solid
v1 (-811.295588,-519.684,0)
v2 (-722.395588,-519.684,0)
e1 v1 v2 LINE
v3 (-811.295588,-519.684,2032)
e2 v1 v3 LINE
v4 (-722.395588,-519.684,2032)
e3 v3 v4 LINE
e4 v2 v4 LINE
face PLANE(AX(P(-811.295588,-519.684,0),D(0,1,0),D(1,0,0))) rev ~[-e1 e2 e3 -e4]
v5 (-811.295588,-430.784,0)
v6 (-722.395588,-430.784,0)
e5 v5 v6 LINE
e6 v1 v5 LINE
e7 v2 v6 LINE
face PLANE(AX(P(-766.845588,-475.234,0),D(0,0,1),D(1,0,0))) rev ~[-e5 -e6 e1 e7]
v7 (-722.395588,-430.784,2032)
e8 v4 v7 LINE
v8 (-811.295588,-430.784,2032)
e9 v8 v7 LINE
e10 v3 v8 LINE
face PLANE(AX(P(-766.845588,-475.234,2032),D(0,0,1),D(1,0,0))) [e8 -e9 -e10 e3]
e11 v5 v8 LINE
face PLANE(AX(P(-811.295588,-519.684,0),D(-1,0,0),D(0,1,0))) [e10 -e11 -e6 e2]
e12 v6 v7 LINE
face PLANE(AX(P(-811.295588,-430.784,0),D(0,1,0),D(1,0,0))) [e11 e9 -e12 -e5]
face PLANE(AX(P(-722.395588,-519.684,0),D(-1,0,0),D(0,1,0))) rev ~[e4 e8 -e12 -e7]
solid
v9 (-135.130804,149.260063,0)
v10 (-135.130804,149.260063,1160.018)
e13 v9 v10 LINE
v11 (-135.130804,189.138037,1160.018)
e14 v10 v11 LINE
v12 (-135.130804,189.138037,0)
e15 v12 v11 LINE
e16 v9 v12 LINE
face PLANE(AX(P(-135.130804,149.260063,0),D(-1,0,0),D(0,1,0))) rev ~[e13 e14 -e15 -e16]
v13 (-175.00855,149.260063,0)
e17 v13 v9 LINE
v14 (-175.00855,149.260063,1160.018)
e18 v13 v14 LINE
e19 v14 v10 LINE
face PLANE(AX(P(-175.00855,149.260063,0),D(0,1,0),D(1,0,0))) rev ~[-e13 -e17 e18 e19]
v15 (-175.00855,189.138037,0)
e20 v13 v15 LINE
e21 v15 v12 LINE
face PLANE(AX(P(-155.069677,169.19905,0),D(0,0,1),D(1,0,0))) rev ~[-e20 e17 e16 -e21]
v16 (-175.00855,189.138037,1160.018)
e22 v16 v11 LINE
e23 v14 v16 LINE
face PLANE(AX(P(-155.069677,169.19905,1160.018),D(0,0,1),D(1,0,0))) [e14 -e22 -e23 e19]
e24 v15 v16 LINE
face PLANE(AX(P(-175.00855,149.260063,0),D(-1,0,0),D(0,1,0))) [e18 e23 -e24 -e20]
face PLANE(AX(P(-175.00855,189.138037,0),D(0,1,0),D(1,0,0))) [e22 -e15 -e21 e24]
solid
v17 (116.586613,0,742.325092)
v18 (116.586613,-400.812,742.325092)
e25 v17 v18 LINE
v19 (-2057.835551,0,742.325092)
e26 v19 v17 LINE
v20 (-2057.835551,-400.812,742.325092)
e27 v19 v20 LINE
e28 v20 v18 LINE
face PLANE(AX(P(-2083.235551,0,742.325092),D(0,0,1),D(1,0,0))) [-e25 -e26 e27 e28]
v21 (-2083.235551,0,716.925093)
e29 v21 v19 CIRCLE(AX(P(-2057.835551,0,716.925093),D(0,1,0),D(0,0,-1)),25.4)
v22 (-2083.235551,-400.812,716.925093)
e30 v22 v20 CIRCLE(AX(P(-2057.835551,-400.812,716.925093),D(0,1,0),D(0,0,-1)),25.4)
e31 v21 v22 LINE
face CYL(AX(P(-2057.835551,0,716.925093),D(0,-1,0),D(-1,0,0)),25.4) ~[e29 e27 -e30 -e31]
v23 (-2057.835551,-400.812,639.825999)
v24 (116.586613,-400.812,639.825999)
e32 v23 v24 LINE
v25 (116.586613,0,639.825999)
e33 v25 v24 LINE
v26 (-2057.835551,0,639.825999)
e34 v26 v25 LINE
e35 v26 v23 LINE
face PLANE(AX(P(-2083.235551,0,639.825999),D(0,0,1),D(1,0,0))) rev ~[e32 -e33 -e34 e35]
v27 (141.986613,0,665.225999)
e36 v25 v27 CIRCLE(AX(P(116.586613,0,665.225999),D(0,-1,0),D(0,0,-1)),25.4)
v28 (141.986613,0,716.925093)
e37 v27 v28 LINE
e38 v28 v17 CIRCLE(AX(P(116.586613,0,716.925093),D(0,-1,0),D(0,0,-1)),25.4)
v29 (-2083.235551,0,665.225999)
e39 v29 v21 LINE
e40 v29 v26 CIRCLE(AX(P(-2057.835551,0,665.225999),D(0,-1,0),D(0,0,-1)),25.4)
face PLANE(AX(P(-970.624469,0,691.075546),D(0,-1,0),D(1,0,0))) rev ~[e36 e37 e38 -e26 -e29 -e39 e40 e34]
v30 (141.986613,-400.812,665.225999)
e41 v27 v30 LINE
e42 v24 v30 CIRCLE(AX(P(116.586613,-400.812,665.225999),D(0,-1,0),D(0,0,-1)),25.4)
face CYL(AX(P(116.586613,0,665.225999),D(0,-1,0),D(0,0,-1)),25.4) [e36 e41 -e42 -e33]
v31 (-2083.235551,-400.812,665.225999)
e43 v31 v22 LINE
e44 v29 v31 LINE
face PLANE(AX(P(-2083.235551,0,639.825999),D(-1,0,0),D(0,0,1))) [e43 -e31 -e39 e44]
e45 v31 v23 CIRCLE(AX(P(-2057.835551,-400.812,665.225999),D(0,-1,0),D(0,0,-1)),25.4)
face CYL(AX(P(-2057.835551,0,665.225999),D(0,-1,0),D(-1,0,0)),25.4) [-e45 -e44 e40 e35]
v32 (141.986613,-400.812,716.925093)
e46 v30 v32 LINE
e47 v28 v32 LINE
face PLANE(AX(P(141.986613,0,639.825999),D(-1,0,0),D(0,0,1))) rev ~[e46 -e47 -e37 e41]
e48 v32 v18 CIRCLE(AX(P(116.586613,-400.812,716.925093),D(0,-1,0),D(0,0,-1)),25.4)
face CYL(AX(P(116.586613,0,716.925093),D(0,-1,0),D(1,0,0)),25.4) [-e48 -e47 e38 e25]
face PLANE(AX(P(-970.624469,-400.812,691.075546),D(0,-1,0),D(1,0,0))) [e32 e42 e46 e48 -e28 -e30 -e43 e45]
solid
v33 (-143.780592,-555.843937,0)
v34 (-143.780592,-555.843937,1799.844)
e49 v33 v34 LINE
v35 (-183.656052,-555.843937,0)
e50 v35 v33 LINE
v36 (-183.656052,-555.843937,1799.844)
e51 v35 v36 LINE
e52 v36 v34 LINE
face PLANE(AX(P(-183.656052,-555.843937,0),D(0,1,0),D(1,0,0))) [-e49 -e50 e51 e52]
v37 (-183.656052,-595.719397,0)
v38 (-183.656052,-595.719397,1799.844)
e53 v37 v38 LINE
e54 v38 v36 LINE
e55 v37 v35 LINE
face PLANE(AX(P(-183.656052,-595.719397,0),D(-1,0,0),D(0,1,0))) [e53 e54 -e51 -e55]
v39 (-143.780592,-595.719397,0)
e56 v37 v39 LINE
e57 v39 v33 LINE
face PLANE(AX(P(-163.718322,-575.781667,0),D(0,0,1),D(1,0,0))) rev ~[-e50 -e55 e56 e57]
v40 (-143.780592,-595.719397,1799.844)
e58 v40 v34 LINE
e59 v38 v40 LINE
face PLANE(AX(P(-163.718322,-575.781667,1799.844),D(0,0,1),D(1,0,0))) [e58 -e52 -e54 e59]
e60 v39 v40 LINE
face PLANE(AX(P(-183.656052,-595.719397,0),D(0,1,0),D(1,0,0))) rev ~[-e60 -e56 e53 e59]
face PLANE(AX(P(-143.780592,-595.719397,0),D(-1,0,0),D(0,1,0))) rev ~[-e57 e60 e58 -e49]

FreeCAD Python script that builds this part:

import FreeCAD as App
import Part
import Sketcher
Q = App.Units.Quantity


def edges_at(feature, points):
    """Names of the edges that pass closest to the given points."""
    edges = feature.Shape.Edges
    near = lambda p: min(range(len(edges)), key=lambda i: edges[i].distToShape(Part.Vertex(*p))[0])
    return sorted({f"Edge{near(p) + 1}" for p in points})

doc = App.newDocument("Part")
params = doc.addObject("Spreadsheet::Sheet", "Params")
for row, (alias, value) in enumerate([
    ("sketch1_width", "3.5 in"),
    ("pad1_length", "80 in"),
    ("pad2_length", "15.78 in"),
    ("fillet_radius", "1 in"),
    ("pad3_length", "45.67 in"),
    ("pad4_length", "70.86 in"),
], start=1):
    params.set(f"A{row}", alias)
    params.set(f"B{row}", "=" + value)
    params.setAlias(f"B{row}", alias)

body = doc.addObject("PartDesign::Body", "Body")

sketch1 = doc.addObject("Sketcher::SketchObject", "Sketch")
body.addObject(sketch1)
sketch1.AttachmentSupport = (doc.XY_Plane, [""])
sketch1.MapMode = "FlatFace"
sketch1.addGeometry(Part.LineSegment(App.Vector(-811, -431, 0), App.Vector(-811, -520, 0)), False)
sketch1.addGeometry(Part.LineSegment(App.Vector(-811, -520, 0), App.Vector(-722, -520, 0)), False)
sketch1.addGeometry(Part.LineSegment(App.Vector(-722, -520, 0), App.Vector(-722, -431, 0)), False)
sketch1.addGeometry(Part.LineSegment(App.Vector(-722, -431, 0), App.Vector(-811, -431, 0)), False)
sketch1.addConstraint(Sketcher.Constraint("Coincident", 0, 2, 1, 1))
sketch1.addConstraint(Sketcher.Constraint("Coincident", 1, 2, 2, 1))
sketch1.addConstraint(Sketcher.Constraint("Coincident", 2, 2, 3, 1))
sketch1.addConstraint(Sketcher.Constraint("Coincident", 3, 2, 0, 1))
sketch1.addConstraint(Sketcher.Constraint("Vertical", 0))
sketch1.addConstraint(Sketcher.Constraint("Horizontal", 1))
sketch1.addConstraint(Sketcher.Constraint("Vertical", 2))
sketch1.addConstraint(Sketcher.Constraint("Horizontal", 3))
sketch1.addConstraint(Sketcher.Constraint("Equal", 3, 0))
sketch1.addConstraint(Sketcher.Constraint("DistanceX", 1, 1, 1, 2, Q("3.5 in")))
sketch1.addConstraint(Sketcher.Constraint("DistanceY", 0, 2, -1, 1, Q("20.46 in")))
sketch1.addConstraint(Sketcher.Constraint("DistanceX", 0, 2, -1, 1, 811.295588))
sketch1.setExpression("Constraints[9]", "Params.sketch1_width")
pad1 = doc.addObject("PartDesign::Pad", "Pad")
body.addObject(pad1)
pad1.Profile = sketch1
pad1.setExpression("Length", "Params.pad1_length")
body2 = doc.addObject("PartDesign::Body", "Body001")

sketch2 = doc.addObject("Sketcher::SketchObject", "Sketch001")
body2.addObject(sketch2)
sketch2.AttachmentSupport = (doc.getObject("XZ_Plane001"), [""])
sketch2.MapMode = "FlatFace"
sketch2.addGeometry(Part.LineSegment(App.Vector(-2083, 742, 0), App.Vector(-2083, 640, 0)), False)
sketch2.addGeometry(Part.LineSegment(App.Vector(-2083, 640, 0), App.Vector(142, 640, 0)), False)
sketch2.addGeometry(Part.LineSegment(App.Vector(142, 640, 0), App.Vector(142, 742, 0)), False)
sketch2.addGeometry(Part.LineSegment(App.Vector(142, 742, 0), App.Vector(-2083, 742, 0)), False)
sketch2.addConstraint(Sketcher.Constraint("Coincident", 0, 2, 1, 1))
sketch2.addConstraint(Sketcher.Constraint("Coincident", 1, 2, 2, 1))
sketch2.addConstraint(Sketcher.Constraint("Coincident", 2, 2, 3, 1))
sketch2.addConstraint(Sketcher.Constraint("Coincident", 3, 2, 0, 1))
sketch2.addConstraint(Sketcher.Constraint("Vertical", 0))
sketch2.addConstraint(Sketcher.Constraint("Horizontal", 1))
sketch2.addConstraint(Sketcher.Constraint("Vertical", 2))
sketch2.addConstraint(Sketcher.Constraint("Horizontal", 3))
sketch2.addConstraint(Sketcher.Constraint("DistanceY", -1, 1, 0, 2, Q("25.19 in")))
sketch2.addConstraint(Sketcher.Constraint("DistanceX", 1, 1, 1, 2, 2225.222164))
sketch2.addConstraint(Sketcher.Constraint("DistanceY", 0, 2, 0, 1, 102.499093))
sketch2.addConstraint(Sketcher.Constraint("DistanceX", 0, 2, -1, 1, 2083.235551))
pad2 = doc.addObject("PartDesign::Pad", "Pad001")
body2.addObject(pad2)
pad2.Profile = sketch2
pad2.setExpression("Length", "Params.pad2_length")
doc.recompute()

fillet = doc.addObject("PartDesign::Fillet", "Fillet")
body2.addObject(fillet)
fillet.Base = (pad2, edges_at(pad2, [
    (-2083.236, -200.406, 742.325),
    (141.987, -200.406, 742.325),
    (-2083.236, -200.406, 639.826),
    (141.987, -200.406, 639.826),
]))
fillet.setExpression("Radius", "Params.fillet_radius")
body3 = doc.addObject("PartDesign::Body", "Body002")

sketch3 = doc.addObject("Sketcher::SketchObject", "Sketch002")
body3.addObject(sketch3)
sketch3.AttachmentSupport = (doc.getObject("XY_Plane002"), [""])
sketch3.MapMode = "FlatFace"
sketch3.addGeometry(Part.LineSegment(App.Vector(-175, 189, 0), App.Vector(-175, 149, 0)), False)
sketch3.addGeometry(Part.LineSegment(App.Vector(-175, 149, 0), App.Vector(-135, 149, 0)), False)
sketch3.addGeometry(Part.LineSegment(App.Vector(-135, 149, 0), App.Vector(-135, 189, 0)), False)
sketch3.addGeometry(Part.LineSegment(App.Vector(-135, 189, 0), App.Vector(-175, 189, 0)), False)
sketch3.addConstraint(Sketcher.Constraint("Coincident", 0, 2, 1, 1))
sketch3.addConstraint(Sketcher.Constraint("Coincident", 1, 2, 2, 1))
sketch3.addConstraint(Sketcher.Constraint("Coincident", 2, 2, 3, 1))
sketch3.addConstraint(Sketcher.Constraint("Coincident", 3, 2, 0, 1))
sketch3.addConstraint(Sketcher.Constraint("Vertical", 0))
sketch3.addConstraint(Sketcher.Constraint("Horizontal", 1))
sketch3.addConstraint(Sketcher.Constraint("Vertical", 2))
sketch3.addConstraint(Sketcher.Constraint("Horizontal", 3))
sketch3.addConstraint(Sketcher.Constraint("DistanceX", 1, 1, 1, 2, 39.877746))
sketch3.addConstraint(Sketcher.Constraint("DistanceY", 0, 2, 0, 1, 39.877975))
sketch3.addConstraint(Sketcher.Constraint("DistanceX", 0, 2, -1, 1, 175.00855))
sketch3.addConstraint(Sketcher.Constraint("DistanceY", -1, 1, 0, 2, 149.260063))
pad3 = doc.addObject("PartDesign::Pad", "Pad002")
body3.addObject(pad3)
pad3.Profile = sketch3
pad3.setExpression("Length", "Params.pad3_length")
body4 = doc.addObject("PartDesign::Body", "Body003")

sketch4 = doc.addObject("Sketcher::SketchObject", "Sketch003")
body4.addObject(sketch4)
sketch4.AttachmentSupport = (doc.getObject("XY_Plane003"), [""])
sketch4.MapMode = "FlatFace"
sketch4.addGeometry(Part.LineSegment(App.Vector(-184, -556, 0), App.Vector(-184, -596, 0)), False)
sketch4.addGeometry(Part.LineSegment(App.Vector(-184, -596, 0), App.Vector(-144, -596, 0)), False)
sketch4.addGeometry(Part.LineSegment(App.Vector(-144, -596, 0), App.Vector(-144, -556, 0)), False)
sketch4.addGeometry(Part.LineSegment(App.Vector(-144, -556, 0), App.Vector(-184, -556, 0)), False)
sketch4.addConstraint(Sketcher.Constraint("Coincident", 0, 2, 1, 1))
sketch4.addConstraint(Sketcher.Constraint("Coincident", 1, 2, 2, 1))
sketch4.addConstraint(Sketcher.Constraint("Coincident", 2, 2, 3, 1))
sketch4.addConstraint(Sketcher.Constraint("Coincident", 3, 2, 0, 1))
sketch4.addConstraint(Sketcher.Constraint("Vertical", 0))
sketch4.addConstraint(Sketcher.Constraint("Horizontal", 1))
sketch4.addConstraint(Sketcher.Constraint("Vertical", 2))
sketch4.addConstraint(Sketcher.Constraint("Horizontal", 3))
sketch4.addConstraint(Sketcher.Constraint("Equal", 3, 0))
sketch4.addConstraint(Sketcher.Constraint("DistanceX", 1, 1, 1, 2, Q("1.5699 in")))
sketch4.addConstraint(Sketcher.Constraint("DistanceX", 0, 2, -1, 1, 183.656052))
sketch4.addConstraint(Sketcher.Constraint("DistanceY", 0, 2, -1, 1, 595.719397))
pad4 = doc.addObject("PartDesign::Pad", "Pad003")
body4.addObject(pad4)
pad4.Profile = sketch4
pad4.setExpression("Length", "Params.pad4_length")

doc.recompute()
